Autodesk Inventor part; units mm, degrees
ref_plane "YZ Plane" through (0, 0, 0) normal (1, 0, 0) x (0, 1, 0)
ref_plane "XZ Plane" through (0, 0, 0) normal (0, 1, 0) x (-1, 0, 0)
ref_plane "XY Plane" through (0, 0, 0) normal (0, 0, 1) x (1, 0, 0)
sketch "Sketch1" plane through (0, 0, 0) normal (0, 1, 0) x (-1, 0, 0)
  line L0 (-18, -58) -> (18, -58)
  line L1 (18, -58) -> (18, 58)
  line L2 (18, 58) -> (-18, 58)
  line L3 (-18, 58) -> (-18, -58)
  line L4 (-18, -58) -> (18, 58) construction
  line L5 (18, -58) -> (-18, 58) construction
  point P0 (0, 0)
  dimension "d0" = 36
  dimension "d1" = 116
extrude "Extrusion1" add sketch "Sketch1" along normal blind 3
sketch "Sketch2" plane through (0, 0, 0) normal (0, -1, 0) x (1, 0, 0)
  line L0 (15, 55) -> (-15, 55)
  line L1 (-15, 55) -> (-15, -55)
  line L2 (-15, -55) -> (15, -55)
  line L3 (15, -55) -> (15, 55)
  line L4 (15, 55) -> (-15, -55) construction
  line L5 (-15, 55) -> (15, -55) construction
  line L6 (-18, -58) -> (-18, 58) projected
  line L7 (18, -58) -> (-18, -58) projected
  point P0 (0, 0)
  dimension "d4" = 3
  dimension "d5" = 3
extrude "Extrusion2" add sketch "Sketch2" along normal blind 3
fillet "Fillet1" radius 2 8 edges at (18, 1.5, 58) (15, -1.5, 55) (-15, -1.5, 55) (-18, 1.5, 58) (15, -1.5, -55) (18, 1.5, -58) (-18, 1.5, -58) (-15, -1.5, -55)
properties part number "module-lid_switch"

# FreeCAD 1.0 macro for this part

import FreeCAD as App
import Part
import Sketcher
from FreeCAD import Vector


def edges_at(feature, points):
    """Names of the edges that pass closest to the given points."""
    edges = feature.Shape.Edges
    near = lambda p: min(range(len(edges)), key=lambda i: edges[i].distToShape(Part.Vertex(*p))[0])
    return sorted({f"Edge{near(p) + 1}" for p in points})

doc = App.newDocument("Part")
body = doc.addObject("PartDesign::Body", "Body")

sketch1 = body.newObject("Sketcher::SketchObject", "Sketch")
sketch1.AttachmentSupport = (doc.getObject("XZ_Plane"), [""])
sketch1.MapMode = "FlatFace"
sketch1.addGeometry([
    Part.LineSegment(Vector(18, 58, 0), Vector(18, -58, 0)),
    Part.LineSegment(Vector(18, -58, 0), Vector(-18, -58, 0)),
    Part.LineSegment(Vector(-18, -58, 0), Vector(-18, 58, 0)),
    Part.LineSegment(Vector(-18, 58, 0), Vector(18, 58, 0)),
], False)
sketch1.addConstraint([
    Sketcher.Constraint("Coincident", 0, 2, 1, 1),
    Sketcher.Constraint("Coincident", 1, 2, 2, 1),
    Sketcher.Constraint("Coincident", 2, 2, 3, 1),
    Sketcher.Constraint("Coincident", 3, 2, 0, 1),
    Sketcher.Constraint("Vertical", 0),
    Sketcher.Constraint("Horizontal", 1),
    Sketcher.Constraint("Vertical", 2),
    Sketcher.Constraint("Horizontal", 3),
    Sketcher.Constraint("Symmetric", 0, 2, 2, 2, -1, 1),
    Sketcher.Constraint("DistanceX", 1, 2, 1, 1, 36.0),
    Sketcher.Constraint("DistanceY", 0, 2, 0, 1, 116.0),
])
pad1 = body.newObject("PartDesign::Pad", "Pad")
pad1.Profile = sketch1
pad1.Length = 3
pad1.Reversed = True

sketch2 = body.newObject("Sketcher::SketchObject", "Sketch001")
sketch2.AttachmentSupport = (doc.getObject("XZ_Plane"), [""])
sketch2.MapMode = "FlatFace"
sketch2.addGeometry([
    Part.LineSegment(Vector(15, -55, 0), Vector(15, 55, 0)),
    Part.LineSegment(Vector(15, 55, 0), Vector(-15, 55, 0)),
    Part.LineSegment(Vector(-15, 55, 0), Vector(-15, -55, 0)),
    Part.LineSegment(Vector(-15, -55, 0), Vector(15, -55, 0)),
], False)
sketch2.addConstraint([
    Sketcher.Constraint("Coincident", 0, 2, 1, 1),
    Sketcher.Constraint("Coincident", 1, 2, 2, 1),
    Sketcher.Constraint("Coincident", 2, 2, 3, 1),
    Sketcher.Constraint("Coincident", 3, 2, 0, 1),
    Sketcher.Constraint("Vertical", 0),
    Sketcher.Constraint("Horizontal", 1),
    Sketcher.Constraint("Vertical", 2),
    Sketcher.Constraint("Horizontal", 3),
    Sketcher.Constraint("Symmetric", 0, 2, 2, 2, -1, 1),
    Sketcher.Constraint("DistanceX", 1, 2, 1, 1, 30.0),
    Sketcher.Constraint("DistanceY", 0, 1, 0, 2, 110.0),
])
pad2 = body.newObject("PartDesign::Pad", "Pad001")
pad2.Profile = sketch2
pad2.Length = 3
doc.recompute()

fillet = body.newObject("PartDesign::Fillet", "Fillet")
fillet.Base = (pad2, edges_at(pad2, [
    (18, 1.5, 58),
    (15, -1.5, 55),
    (-15, -1.5, 55),
    (-18, 1.5, 58),
    (15, -1.5, -55),
    (18, 1.5, -58),
    (-18, 1.5, -58),
    (-15, -1.5, -55),
]))
fillet.Radius = 2

doc.recompute()
